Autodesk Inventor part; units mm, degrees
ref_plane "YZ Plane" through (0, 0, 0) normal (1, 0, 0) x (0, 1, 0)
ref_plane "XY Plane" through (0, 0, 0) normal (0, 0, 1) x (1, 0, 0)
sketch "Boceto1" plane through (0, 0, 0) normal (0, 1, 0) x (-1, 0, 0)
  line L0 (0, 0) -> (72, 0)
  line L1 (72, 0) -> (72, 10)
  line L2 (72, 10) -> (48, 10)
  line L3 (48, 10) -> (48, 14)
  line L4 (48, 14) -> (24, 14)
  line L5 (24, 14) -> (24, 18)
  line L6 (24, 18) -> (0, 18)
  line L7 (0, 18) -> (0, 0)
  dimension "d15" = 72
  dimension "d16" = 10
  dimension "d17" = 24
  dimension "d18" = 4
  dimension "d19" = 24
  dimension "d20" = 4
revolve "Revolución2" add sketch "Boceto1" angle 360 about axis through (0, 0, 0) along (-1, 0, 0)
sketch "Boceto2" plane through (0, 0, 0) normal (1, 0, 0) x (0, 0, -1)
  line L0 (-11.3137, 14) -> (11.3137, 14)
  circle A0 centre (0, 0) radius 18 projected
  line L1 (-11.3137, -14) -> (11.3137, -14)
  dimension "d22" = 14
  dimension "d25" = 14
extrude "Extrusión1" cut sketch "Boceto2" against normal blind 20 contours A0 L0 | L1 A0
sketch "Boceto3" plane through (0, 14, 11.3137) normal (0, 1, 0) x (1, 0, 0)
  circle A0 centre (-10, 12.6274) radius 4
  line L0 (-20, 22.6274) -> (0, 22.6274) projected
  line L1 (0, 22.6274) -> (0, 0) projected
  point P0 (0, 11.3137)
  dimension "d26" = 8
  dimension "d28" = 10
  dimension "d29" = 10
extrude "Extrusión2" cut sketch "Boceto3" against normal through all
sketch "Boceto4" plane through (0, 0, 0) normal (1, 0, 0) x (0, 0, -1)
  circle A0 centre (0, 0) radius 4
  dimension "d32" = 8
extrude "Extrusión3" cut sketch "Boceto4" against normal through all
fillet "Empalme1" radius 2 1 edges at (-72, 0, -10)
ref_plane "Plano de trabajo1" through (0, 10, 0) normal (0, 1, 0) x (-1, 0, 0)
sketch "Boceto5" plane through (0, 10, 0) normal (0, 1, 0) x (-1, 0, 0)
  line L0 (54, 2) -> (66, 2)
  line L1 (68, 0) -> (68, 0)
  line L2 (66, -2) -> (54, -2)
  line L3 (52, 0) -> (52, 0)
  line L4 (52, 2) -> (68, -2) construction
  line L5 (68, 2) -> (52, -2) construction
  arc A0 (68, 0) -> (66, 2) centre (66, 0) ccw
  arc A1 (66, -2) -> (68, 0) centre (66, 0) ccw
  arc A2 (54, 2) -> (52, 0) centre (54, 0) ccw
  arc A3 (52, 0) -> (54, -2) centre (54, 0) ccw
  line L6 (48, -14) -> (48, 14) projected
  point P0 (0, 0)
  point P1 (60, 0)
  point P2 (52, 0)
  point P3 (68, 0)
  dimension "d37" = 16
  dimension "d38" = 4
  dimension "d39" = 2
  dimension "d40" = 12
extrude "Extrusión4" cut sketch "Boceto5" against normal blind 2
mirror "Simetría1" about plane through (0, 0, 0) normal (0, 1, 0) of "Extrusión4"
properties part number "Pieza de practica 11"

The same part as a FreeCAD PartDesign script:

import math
import FreeCAD as App
import Part
import Sketcher
from FreeCAD import Vector
Q = App.Units.Quantity


def edges_at(feature, points):
    """Names of the edges that pass closest to the given points."""
    edges = feature.Shape.Edges
    near = lambda p: min(range(len(edges)), key=lambda i: edges[i].distToShape(Part.Vertex(*p))[0])
    return sorted({f"Edge{near(p) + 1}" for p in points})

doc = App.newDocument("Part")
body = doc.addObject("PartDesign::Body", "Body")

# Sketch on XZ plane
sketch1 = body.newObject("Sketcher::SketchObject", "Sketch")
sketch1.AttachmentSupport = (doc.getObject("XZ_Plane"), [""])
sketch1.MapMode = "FlatFace"
sketch1.addGeometry([
    Part.LineSegment(Vector(0, 18, 0), Vector(0, 0, 0)),  # 0
    Part.LineSegment(Vector(0, 0, 0), Vector(-72, 0, 0)),  # 1
    Part.LineSegment(Vector(-72, 0, 0), Vector(-72, 10, 0)),  # 2
    Part.LineSegment(Vector(-72, 10, 0), Vector(-48, 10, 0)),  # 3
    Part.LineSegment(Vector(-48, 10, 0), Vector(-48, 14, 0)),  # 4
    Part.LineSegment(Vector(-48, 14, 0), Vector(-24, 14, 0)),  # 5
    Part.LineSegment(Vector(-24, 14, 0), Vector(-24, 18, 0)),  # 6
    Part.LineSegment(Vector(-24, 18, 0), Vector(0, 18, 0)),  # 7
], False)
sketch1.addConstraint([
    Sketcher.Constraint("Coincident", 0, 2, 1, 1),
    Sketcher.Constraint("Coincident", 1, 2, 2, 1),
    Sketcher.Constraint("Coincident", 2, 2, 3, 1),
    Sketcher.Constraint("Coincident", 3, 2, 4, 1),
    Sketcher.Constraint("Coincident", 4, 2, 5, 1),
    Sketcher.Constraint("Coincident", 5, 2, 6, 1),
    Sketcher.Constraint("Coincident", 6, 2, 7, 1),
    Sketcher.Constraint("Coincident", 7, 2, 0, 1),
    Sketcher.Constraint("Vertical", 0),
    Sketcher.Constraint("Horizontal", 1),
    Sketcher.Constraint("Vertical", 2),
    Sketcher.Constraint("Horizontal", 3),
    Sketcher.Constraint("Vertical", 4),
    Sketcher.Constraint("Horizontal", 5),
    Sketcher.Constraint("Vertical", 6),
    Sketcher.Constraint("Horizontal", 7),
    Sketcher.Constraint("Coincident", 0, 2, -1, 1),
    Sketcher.Constraint("Equal", 3, 5),
    Sketcher.Constraint("Equal", 5, 7),
    Sketcher.Constraint("Equal", 4, 6),
    Sketcher.Constraint("DistanceX", 1, 2, 1, 1, Q("72 mm")),
    Sketcher.Constraint("DistanceY", 2, 1, 2, 2, Q("10 mm")),
    Sketcher.Constraint("DistanceY", 4, 1, 4, 2, Q("4 mm")),
])
revolution = body.newObject("PartDesign::Revolution", "Revolution")
revolution.Profile = sketch1
revolution.ReferenceAxis = (sketch1, ["H_Axis"])
revolution.Angle = 360

# Sketch on YZ plane
sketch2 = body.newObject("Sketcher::SketchObject", "Sketch001")
sketch2.AttachmentSupport = (doc.getObject("YZ_Plane"), [""])
sketch2.MapMode = "FlatFace"
sketch2.addGeometry([
    Part.ArcOfCircle(Part.Circle(Vector(0, 0, 0), Vector(0, 0, 1), 18), math.radians(-39), math.radians(39)),
    Part.LineSegment(Vector(14, -11, 0), Vector(14, 11, 0)),
    Part.LineSegment(Vector(-14, -11, 0), Vector(-14, 11, 0)),
    Part.ArcOfCircle(Part.Circle(Vector(0, 0, 0), Vector(0, 0, 1), 18), math.radians(141), math.radians(219)),
], False)
sketch2.addConstraint([
    Sketcher.Constraint("Coincident", 0, 1, 1, 1),
    Sketcher.Constraint("Coincident", 1, 2, 0, 2),
    Sketcher.Constraint("Coincident", 2, 1, 3, 2),
    Sketcher.Constraint("Coincident", 3, 1, 2, 2),
    Sketcher.Constraint("Vertical", 1),
    Sketcher.Constraint("Vertical", 2),
    Sketcher.Constraint("Coincident", 0, 3, -1, 1),
    Sketcher.Constraint("Coincident", 3, 3, -1, 1),
    Sketcher.Constraint("Equal", 0, 3),
    Sketcher.Constraint("Horizontal", 0, 1, 2, 1),
    Sketcher.Constraint("DistanceX", -1, 1, 0, 1, Q("14 mm")),
    Sketcher.Constraint("Radius", 0, Q("18 mm")),
])
pocket1 = body.newObject("PartDesign::Pocket", "Pocket")
pocket1.Profile = sketch2
pocket1.Length = 20

# Sketch on XZ plane
sketch3 = body.newObject("Sketcher::SketchObject", "Sketch002")
sketch3.AttachmentSupport = (doc.getObject("XZ_Plane"), [""])
sketch3.MapMode = "FlatFace"
sketch3.AttachmentOffset = App.Placement(Vector(0, 0, -14), App.Rotation())
sketch3.addGeometry(Part.Circle(Vector(-10, -1.3, 0), Vector(0, 0, 1), 4), False)
sketch3.addConstraint([
    Sketcher.Constraint("Diameter", 0, Q("8 mm")),
    Sketcher.Constraint("DistanceX", 0, 3, -1, 1, Q("10 mm")),
    Sketcher.Constraint("DistanceY", 0, 3, -1, 1, Q("1.3137 mm")),
])
pocket2 = body.newObject("PartDesign::Pocket", "Pocket001")
pocket2.Profile = sketch3
pocket2.Type = "ThroughAll"
pocket2.Reversed = True

# Sketch on YZ plane
sketch4 = body.newObject("Sketcher::SketchObject", "Sketch003")
sketch4.AttachmentSupport = (doc.getObject("YZ_Plane"), [""])
sketch4.MapMode = "FlatFace"
sketch4.addGeometry(Part.Circle(Vector(0, 0, 0), Vector(0, 0, 1), 4), False)
sketch4.addConstraint([
    Sketcher.Constraint("Coincident", 0, 3, -1, 1),
    Sketcher.Constraint("Diameter", 0, Q("8 mm")),
])
pocket3 = body.newObject("PartDesign::Pocket", "Pocket002")
pocket3.Profile = sketch4
pocket3.Type = "ThroughAll"
doc.recompute()

fillet = body.newObject("PartDesign::Fillet", "Fillet")
fillet.Base = (pocket3, edges_at(pocket3, [(-72, 0, -10)]))
fillet.Radius = 2

# Sketch on XZ plane
sketch5 = body.newObject("Sketcher::SketchObject", "Sketch004")
sketch5.AttachmentSupport = (doc.getObject("XZ_Plane"), [""])
sketch5.MapMode = "FlatFace"
sketch5.AttachmentOffset = App.Placement(Vector(0, 0, -10), App.Rotation())
sketch5.addGeometry([
    Part.LineSegment(Vector(-66, 2, 0), Vector(-54, 2, 0)),
    Part.ArcOfCircle(Part.Circle(Vector(-54, 0, 0), Vector(0, 0, 1), 2), math.radians(-90), math.radians(90)),
    Part.LineSegment(Vector(-54, -2, 0), Vector(-66, -2, 0)),
    Part.ArcOfCircle(Part.Circle(Vector(-66, 0, 0), Vector(0, 0, 1), 2), math.radians(90), math.radians(270)),
], False)
sketch5.addConstraint([
    Sketcher.Constraint("Tangent", 0, 2, 1, 2),
    Sketcher.Constraint("Tangent", 1, 1, 2, 1),
    Sketcher.Constraint("Tangent", 2, 2, 3, 2),
    Sketcher.Constraint("Tangent", 3, 1, 0, 1),
    Sketcher.Constraint("Horizontal", 0),
    Sketcher.Constraint("Horizontal", 2),
    Sketcher.Constraint("PointOnObject", 1, 3, -1),
    Sketcher.Constraint("Radius", 1, Q("2 mm")),
    Sketcher.Constraint("DistanceX", 0, 1, 0, 2, Q("12 mm")),
    Sketcher.Constraint("DistanceX", 1, 3, -1, 1, Q("54 mm")),
])
pocket4 = body.newObject("PartDesign::Pocket", "Pocket003")
pocket4.Profile = sketch5
pocket4.Length = 2
pocket4.Reversed = True
doc.recompute()

mirrored = body.newObject("PartDesign::Mirrored", "Mirrored")
mirrored.Originals = [pocket4]
mirrored.MirrorPlane = (doc.getObject("XZ_Plane"), [""])
body.Tip = mirrored

doc.recompute()
